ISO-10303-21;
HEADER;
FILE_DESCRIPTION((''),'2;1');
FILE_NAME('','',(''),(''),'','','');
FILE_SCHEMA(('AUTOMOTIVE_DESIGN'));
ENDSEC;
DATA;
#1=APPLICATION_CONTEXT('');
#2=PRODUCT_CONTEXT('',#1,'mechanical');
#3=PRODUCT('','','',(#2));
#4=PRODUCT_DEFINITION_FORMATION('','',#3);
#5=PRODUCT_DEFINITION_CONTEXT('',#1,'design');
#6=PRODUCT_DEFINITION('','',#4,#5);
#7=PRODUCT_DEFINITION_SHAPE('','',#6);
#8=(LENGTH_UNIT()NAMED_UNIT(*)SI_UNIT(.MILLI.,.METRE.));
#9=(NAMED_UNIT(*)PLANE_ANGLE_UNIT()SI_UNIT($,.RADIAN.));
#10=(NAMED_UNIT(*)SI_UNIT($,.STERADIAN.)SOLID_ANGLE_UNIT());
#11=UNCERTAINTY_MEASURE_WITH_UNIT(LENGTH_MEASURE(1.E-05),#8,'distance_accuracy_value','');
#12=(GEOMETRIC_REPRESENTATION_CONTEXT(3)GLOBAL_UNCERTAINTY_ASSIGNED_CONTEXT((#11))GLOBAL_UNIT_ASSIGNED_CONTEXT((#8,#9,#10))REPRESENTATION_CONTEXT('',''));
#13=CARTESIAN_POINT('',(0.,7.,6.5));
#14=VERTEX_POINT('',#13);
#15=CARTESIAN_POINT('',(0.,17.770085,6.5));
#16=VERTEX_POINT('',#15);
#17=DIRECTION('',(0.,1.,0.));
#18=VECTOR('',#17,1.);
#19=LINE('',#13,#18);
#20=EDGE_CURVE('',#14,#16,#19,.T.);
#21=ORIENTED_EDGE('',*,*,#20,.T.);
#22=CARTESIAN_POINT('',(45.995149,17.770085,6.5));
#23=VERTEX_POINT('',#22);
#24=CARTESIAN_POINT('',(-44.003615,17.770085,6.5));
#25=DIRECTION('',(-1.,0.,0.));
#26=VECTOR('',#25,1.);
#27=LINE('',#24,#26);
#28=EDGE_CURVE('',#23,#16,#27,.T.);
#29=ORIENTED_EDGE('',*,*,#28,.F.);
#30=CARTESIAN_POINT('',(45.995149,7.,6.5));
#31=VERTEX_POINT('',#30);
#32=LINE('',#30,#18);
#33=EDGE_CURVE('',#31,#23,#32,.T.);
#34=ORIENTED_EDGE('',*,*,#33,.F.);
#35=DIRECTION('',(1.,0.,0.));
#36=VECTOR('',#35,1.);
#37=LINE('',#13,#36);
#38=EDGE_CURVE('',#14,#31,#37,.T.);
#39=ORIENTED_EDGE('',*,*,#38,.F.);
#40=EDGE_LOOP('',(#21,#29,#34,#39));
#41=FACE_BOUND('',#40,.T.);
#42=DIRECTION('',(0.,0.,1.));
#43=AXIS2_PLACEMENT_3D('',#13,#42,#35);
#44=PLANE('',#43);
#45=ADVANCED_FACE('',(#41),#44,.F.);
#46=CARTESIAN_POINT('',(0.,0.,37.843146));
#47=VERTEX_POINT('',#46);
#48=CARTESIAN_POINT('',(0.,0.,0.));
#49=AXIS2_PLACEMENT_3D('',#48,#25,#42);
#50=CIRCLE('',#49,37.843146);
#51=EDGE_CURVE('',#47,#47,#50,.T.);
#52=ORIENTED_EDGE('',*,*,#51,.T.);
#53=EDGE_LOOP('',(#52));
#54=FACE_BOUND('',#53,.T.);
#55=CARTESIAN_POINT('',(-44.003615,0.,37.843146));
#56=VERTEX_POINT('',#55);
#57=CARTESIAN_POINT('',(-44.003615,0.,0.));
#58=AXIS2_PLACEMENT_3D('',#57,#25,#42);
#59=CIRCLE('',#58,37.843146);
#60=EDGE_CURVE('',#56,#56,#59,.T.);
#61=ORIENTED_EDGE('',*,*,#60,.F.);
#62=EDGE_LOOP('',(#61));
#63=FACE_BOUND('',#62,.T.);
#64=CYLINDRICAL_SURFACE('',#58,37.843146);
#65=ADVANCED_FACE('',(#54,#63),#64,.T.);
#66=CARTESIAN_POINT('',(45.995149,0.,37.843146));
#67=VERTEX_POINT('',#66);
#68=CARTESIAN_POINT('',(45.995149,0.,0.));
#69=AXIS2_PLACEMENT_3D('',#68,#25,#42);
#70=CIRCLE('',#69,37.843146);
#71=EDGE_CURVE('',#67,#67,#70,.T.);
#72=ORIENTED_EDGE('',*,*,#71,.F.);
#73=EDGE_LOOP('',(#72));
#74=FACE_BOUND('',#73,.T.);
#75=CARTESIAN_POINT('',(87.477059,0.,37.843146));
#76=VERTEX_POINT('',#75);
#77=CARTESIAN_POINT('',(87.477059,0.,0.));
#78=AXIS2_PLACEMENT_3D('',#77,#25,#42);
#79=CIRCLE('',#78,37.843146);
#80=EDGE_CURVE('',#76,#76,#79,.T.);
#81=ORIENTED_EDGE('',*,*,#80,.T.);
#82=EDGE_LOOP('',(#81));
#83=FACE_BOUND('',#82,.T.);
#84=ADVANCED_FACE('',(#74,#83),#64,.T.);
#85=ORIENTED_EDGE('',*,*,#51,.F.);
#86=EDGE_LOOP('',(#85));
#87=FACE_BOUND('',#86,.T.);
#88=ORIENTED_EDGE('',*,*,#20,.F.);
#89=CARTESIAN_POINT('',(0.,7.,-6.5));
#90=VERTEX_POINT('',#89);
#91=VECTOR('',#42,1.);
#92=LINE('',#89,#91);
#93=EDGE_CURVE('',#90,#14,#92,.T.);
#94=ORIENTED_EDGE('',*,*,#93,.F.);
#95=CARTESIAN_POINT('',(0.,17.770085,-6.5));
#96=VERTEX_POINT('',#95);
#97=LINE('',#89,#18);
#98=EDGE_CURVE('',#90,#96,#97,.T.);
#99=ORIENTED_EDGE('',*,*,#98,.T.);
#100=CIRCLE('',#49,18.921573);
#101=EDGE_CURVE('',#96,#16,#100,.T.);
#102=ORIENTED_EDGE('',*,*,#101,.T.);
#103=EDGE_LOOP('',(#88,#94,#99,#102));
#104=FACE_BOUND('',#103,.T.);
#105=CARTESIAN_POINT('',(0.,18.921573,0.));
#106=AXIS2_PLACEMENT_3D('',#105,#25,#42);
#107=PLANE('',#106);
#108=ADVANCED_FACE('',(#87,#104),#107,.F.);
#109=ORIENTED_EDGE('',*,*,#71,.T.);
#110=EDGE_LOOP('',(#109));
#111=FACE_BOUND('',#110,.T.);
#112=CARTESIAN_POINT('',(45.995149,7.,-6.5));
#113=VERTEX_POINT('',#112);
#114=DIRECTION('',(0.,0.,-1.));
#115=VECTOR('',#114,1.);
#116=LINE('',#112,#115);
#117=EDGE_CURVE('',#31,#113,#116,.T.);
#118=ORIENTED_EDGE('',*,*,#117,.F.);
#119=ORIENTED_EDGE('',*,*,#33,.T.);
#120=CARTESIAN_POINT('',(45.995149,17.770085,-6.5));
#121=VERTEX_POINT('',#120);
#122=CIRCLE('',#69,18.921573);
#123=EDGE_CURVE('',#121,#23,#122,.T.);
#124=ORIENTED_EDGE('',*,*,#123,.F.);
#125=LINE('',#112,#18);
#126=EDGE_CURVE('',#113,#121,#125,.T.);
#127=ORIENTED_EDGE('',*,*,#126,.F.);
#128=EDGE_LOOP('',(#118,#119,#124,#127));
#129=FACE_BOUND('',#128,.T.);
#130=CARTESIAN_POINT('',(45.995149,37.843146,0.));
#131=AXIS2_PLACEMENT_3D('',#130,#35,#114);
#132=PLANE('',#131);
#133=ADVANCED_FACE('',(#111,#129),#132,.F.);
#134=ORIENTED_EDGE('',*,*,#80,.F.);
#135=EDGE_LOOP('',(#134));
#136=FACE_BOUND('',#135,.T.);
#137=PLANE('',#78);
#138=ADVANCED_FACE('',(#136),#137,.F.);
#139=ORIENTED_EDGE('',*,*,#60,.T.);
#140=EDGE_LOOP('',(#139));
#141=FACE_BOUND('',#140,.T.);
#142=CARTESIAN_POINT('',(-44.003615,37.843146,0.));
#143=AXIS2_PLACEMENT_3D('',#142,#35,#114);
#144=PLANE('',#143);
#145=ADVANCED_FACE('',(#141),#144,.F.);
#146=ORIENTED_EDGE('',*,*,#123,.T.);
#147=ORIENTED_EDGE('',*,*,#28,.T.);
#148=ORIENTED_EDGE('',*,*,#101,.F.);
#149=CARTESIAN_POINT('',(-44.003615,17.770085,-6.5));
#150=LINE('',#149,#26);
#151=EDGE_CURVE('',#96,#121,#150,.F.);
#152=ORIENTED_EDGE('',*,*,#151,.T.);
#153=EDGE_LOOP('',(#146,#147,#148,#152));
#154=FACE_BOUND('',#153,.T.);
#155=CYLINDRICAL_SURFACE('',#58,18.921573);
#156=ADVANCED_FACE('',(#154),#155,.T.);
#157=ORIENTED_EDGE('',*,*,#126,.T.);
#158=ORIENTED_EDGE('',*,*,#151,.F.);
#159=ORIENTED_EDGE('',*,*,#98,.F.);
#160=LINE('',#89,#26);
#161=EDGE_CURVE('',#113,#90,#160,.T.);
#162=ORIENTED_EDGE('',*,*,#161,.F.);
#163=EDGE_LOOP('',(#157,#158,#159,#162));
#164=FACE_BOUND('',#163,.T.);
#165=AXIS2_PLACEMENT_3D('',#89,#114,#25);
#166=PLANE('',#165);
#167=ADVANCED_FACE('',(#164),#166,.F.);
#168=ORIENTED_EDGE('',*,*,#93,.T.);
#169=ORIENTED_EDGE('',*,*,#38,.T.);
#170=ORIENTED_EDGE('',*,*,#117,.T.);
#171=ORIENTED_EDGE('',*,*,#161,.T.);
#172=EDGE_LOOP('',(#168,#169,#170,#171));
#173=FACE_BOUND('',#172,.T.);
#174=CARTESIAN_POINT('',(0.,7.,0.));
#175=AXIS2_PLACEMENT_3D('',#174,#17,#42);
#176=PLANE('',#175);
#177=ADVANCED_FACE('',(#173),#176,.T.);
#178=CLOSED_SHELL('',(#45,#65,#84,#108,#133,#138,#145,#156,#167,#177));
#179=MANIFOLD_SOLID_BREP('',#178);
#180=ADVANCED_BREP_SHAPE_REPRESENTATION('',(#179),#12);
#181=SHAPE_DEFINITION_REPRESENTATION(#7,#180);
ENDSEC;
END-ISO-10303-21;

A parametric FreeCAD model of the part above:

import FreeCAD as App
import Part
import Sketcher
from FreeCAD import Vector
Q = App.Units.Quantity

doc = App.newDocument("Part")
body = doc.addObject("PartDesign::Body", "Body")

# Sketch on XY plane
sketch1 = doc.addObject("Sketcher::SketchObject", "Sketch")
body.addObject(sketch1)
sketch1.AttachmentSupport = (doc.XY_Plane, [""])
sketch1.MapMode = "FlatFace"
sketch1.addGeometry([
    Part.LineSegment(Vector(-44, 0, 0), Vector(87, 0, 0)),  # 0
    Part.LineSegment(Vector(87, 0, 0), Vector(87, 38, 0)),  # 1
    Part.LineSegment(Vector(87, 38, 0), Vector(46, 38, 0)),  # 2
    Part.LineSegment(Vector(46, 38, 0), Vector(46, 19, 0)),  # 3
    Part.LineSegment(Vector(46, 19, 0), Vector(0, 19, 0)),  # 4
    Part.LineSegment(Vector(0, 19, 0), Vector(0, 38, 0)),  # 5
    Part.LineSegment(Vector(0, 38, 0), Vector(-44, 38, 0)),  # 6
    Part.LineSegment(Vector(-44, 38, 0), Vector(-44, 0, 0)),  # 7
], False)
sketch1.addConstraint([
    Sketcher.Constraint("Coincident", 0, 2, 1, 1),
    Sketcher.Constraint("Coincident", 1, 2, 2, 1),
    Sketcher.Constraint("Coincident", 2, 2, 3, 1),
    Sketcher.Constraint("Coincident", 3, 2, 4, 1),
    Sketcher.Constraint("Coincident", 4, 2, 5, 1),
    Sketcher.Constraint("Coincident", 5, 2, 6, 1),
    Sketcher.Constraint("Coincident", 6, 2, 7, 1),
    Sketcher.Constraint("Coincident", 7, 2, 0, 1),
    Sketcher.Constraint("Horizontal", 0),
    Sketcher.Constraint("Vertical", 1),
    Sketcher.Constraint("Horizontal", 2),
    Sketcher.Constraint("Vertical", 3),
    Sketcher.Constraint("Horizontal", 4),
    Sketcher.Constraint("Vertical", 5),
    Sketcher.Constraint("Horizontal", 6),
    Sketcher.Constraint("Vertical", 7),
    Sketcher.Constraint("PointOnObject", 0, 2, -1),
    Sketcher.Constraint("PointOnObject", 4, 2, -2),
    Sketcher.Constraint("Horizontal", 2, 2, 5, 2),
    Sketcher.Constraint("DistanceX", 2, 2, 2, 1, Q("41.48191 mm")),
    Sketcher.Constraint("DistanceX", 4, 2, 4, 1, Q("45.995149 mm")),
    Sketcher.Constraint("DistanceX", 0, 1, 0, 2, Q("131.480674 mm")),
    Sketcher.Constraint("DistanceY", 1, 1, 1, 2, Q("37.843146 mm")),
    Sketcher.Constraint("DistanceY", 3, 2, 3, 1, Q("18.921573 mm")),
])
revolution = doc.addObject("PartDesign::Revolution", "Revolution")
body.addObject(revolution)
revolution.Profile = sketch1
revolution.ReferenceAxis = (sketch1, ["H_Axis"])
revolution.Angle = 360

# Sketch on XZ plane
sketch2 = doc.addObject("Sketcher::SketchObject", "Sketch001")
body.addObject(sketch2)
sketch2.AttachmentSupport = (doc.XZ_Plane, [""])
sketch2.MapMode = "FlatFace"
sketch2.AttachmentOffset = App.Placement(Vector(0, 0, -20), App.Rotation())
sketch2.addGeometry([
    Part.LineSegment(Vector(0, -6, 0), Vector(0, 6, 0)),
    Part.LineSegment(Vector(0, 6, 0), Vector(46, 6, 0)),
    Part.LineSegment(Vector(46, 6, 0), Vector(46, -6, 0)),
    Part.LineSegment(Vector(46, -6, 0), Vector(0, -6, 0)),
], False)
sketch2.addConstraint([
    Sketcher.Constraint("Coincident", 0, 2, 1, 1),
    Sketcher.Constraint("Coincident", 1, 2, 2, 1),
    Sketcher.Constraint("Coincident", 2, 2, 3, 1),
    Sketcher.Constraint("Coincident", 3, 2, 0, 1),
    Sketcher.Constraint("Vertical", 0),
    Sketcher.Constraint("Horizontal", 1),
    Sketcher.Constraint("Vertical", 2),
    Sketcher.Constraint("Horizontal", 3),
    Sketcher.Constraint("Symmetric", 0, 2, 3, 2, -1, 1),
    Sketcher.Constraint("DistanceY", 0, 1, 0, 2, Q("13 mm")),
    Sketcher.Constraint("DistanceX", 1, 1, 1, 2, Q("45.995149 mm")),
])
pocket1 = doc.addObject("PartDesign::Pocket", "Pocket")
body.addObject(pocket1)
pocket1.Profile = sketch2
pocket1.Length = 13
pocket1.Reversed = True

doc.recompute()
